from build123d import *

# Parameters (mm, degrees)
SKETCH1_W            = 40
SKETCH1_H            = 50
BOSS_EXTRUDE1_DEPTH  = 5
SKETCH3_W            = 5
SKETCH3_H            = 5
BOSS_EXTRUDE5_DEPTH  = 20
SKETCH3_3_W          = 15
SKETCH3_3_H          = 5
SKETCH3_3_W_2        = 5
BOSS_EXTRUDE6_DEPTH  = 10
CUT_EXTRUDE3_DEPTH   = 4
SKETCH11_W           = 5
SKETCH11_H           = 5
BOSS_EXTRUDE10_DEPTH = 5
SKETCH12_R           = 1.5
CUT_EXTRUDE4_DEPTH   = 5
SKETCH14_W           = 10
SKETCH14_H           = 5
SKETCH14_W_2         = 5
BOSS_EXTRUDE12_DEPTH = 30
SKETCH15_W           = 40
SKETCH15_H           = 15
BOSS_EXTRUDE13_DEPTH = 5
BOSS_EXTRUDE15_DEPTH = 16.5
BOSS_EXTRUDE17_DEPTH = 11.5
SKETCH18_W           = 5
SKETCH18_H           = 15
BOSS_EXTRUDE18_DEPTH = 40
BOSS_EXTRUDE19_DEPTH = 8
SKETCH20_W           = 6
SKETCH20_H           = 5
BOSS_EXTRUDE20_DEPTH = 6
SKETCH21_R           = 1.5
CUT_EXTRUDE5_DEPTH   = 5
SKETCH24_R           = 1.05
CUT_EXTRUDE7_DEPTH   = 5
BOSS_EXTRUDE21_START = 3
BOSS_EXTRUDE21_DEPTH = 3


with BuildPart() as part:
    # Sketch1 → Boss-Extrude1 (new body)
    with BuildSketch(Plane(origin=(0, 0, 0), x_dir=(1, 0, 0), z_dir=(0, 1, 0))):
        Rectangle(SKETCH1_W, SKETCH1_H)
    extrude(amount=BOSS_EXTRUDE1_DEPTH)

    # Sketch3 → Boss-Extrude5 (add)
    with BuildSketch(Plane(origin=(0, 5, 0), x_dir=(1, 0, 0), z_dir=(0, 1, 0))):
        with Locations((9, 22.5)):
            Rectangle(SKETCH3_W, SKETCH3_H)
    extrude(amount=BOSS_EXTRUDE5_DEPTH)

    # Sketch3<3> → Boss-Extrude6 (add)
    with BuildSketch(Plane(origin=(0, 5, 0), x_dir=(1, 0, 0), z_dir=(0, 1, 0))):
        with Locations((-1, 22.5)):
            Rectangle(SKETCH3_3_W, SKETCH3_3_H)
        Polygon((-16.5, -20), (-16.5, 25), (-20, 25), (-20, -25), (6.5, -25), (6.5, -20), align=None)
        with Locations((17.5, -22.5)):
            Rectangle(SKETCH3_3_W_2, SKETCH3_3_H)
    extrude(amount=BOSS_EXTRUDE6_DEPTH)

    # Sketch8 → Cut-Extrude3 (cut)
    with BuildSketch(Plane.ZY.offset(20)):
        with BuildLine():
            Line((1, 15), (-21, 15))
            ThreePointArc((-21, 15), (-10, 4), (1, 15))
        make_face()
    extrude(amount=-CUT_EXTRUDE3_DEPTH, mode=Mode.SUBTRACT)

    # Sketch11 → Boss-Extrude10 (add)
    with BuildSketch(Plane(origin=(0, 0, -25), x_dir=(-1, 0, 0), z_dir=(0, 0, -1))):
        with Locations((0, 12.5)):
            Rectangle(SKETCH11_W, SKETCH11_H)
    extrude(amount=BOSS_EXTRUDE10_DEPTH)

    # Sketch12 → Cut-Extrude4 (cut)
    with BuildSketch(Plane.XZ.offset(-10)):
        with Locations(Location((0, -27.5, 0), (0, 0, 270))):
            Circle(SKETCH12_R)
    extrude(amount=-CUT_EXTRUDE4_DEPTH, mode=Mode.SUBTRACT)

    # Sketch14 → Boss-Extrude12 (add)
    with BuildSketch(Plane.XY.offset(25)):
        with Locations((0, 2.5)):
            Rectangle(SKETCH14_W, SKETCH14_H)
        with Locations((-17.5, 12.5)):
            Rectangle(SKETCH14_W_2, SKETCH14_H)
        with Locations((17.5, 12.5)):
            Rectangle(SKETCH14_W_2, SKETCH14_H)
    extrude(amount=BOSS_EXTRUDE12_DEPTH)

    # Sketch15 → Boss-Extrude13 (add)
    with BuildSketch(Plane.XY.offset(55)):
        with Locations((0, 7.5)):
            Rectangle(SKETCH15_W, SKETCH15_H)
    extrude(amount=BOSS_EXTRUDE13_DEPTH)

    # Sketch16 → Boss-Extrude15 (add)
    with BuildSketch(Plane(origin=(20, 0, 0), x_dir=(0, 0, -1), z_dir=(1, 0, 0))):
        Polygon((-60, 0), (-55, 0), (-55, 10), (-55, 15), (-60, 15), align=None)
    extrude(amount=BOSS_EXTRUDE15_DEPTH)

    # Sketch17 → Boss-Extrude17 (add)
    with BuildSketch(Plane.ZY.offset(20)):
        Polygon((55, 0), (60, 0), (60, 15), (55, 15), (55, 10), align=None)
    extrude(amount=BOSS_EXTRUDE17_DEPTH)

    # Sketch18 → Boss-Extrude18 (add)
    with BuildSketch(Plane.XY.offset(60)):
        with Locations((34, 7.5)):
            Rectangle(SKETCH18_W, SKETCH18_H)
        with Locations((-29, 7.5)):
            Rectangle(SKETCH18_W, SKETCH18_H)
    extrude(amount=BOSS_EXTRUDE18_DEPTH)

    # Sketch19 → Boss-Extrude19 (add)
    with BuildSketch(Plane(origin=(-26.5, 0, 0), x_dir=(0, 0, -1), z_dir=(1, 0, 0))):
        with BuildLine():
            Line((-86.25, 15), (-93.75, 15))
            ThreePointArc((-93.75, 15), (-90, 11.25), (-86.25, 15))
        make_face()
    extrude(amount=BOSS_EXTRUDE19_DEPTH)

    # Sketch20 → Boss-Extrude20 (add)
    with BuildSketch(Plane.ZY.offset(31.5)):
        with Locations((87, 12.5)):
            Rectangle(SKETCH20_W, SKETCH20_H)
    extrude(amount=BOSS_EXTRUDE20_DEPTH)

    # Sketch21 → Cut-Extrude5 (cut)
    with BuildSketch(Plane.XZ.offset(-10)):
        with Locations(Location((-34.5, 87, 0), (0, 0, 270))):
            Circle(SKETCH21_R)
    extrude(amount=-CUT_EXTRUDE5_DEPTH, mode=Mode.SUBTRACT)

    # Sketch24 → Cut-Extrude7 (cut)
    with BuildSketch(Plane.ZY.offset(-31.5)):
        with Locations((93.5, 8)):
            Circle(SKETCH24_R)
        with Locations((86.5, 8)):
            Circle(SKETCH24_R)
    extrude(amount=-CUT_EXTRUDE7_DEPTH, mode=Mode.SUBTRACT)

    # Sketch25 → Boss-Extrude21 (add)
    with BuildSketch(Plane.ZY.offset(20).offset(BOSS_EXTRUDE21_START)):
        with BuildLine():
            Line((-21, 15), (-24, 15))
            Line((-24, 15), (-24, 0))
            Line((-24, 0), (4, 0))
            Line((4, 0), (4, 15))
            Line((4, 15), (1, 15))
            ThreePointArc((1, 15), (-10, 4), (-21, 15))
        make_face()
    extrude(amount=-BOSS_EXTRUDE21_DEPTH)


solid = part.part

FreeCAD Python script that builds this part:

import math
import FreeCAD as App
import Part
import Sketcher

V = App.Vector


def add_polygon(sketch, points):
    """Adds a closed chain of lines whose ends are joined by coincident constraints."""
    first, n = sketch.GeometryCount, len(points)
    for a, b in zip(points, points[1:] + points[:1]):
        sketch.addGeometry(Part.LineSegment(App.Vector(*a, 0), App.Vector(*b, 0)), False)
    for i in range(n):
        sketch.addConstraint(Sketcher.Constraint("Coincident", first + i, 2, first + (i + 1) % n, 1))

doc = App.newDocument("Part")
body = doc.addObject("PartDesign::Body", "Body")

sketch1 = doc.addObject("Sketcher::SketchObject", "Sketch")
body.addObject(sketch1)
sketch1.AttachmentSupport = (doc.XZ_Plane, [""])
sketch1.MapMode = "FlatFace"
add_polygon(sketch1, [(-20, -25), (-20, 25), (20, 25), (20, -25)])
sketch1.addConstraint(Sketcher.Constraint("Vertical", 0))
sketch1.addConstraint(Sketcher.Constraint("Horizontal", 1))
sketch1.addConstraint(Sketcher.Constraint("Vertical", 2))
sketch1.addConstraint(Sketcher.Constraint("Horizontal", 3))
sketch1.addConstraint(Sketcher.Constraint("Symmetric", 0, 2, 2, 2, -1, 1))
sketch1.addConstraint(Sketcher.Constraint("DistanceX", 1, 1, 1, 2, 40.0))
sketch1.addConstraint(Sketcher.Constraint("DistanceY", 0, 1, 0, 2, 50.0))
pad1 = doc.addObject("PartDesign::Pad", "Pad")
body.addObject(pad1)
pad1.Profile = sketch1
pad1.Length = 5
pad1.Reversed = True

sketch2 = doc.addObject("Sketcher::SketchObject", "Sketch001")
body.addObject(sketch2)
sketch2.AttachmentSupport = (doc.XZ_Plane, [""])
sketch2.MapMode = "FlatFace"
sketch2.AttachmentOffset = App.Placement(V(0, 0, -5), App.Rotation())
add_polygon(sketch2, [(6, -25), (6, -20), (12, -20), (12, -25)])
sketch2.addConstraint(Sketcher.Constraint("Vertical", 0))
sketch2.addConstraint(Sketcher.Constraint("Horizontal", 1))
sketch2.addConstraint(Sketcher.Constraint("Vertical", 2))
sketch2.addConstraint(Sketcher.Constraint("Horizontal", 3))
sketch2.addConstraint(Sketcher.Constraint("Equal", 3, 0))
sketch2.addConstraint(Sketcher.Constraint("DistanceX", 1, 1, 1, 2, 5.0))
sketch2.addConstraint(Sketcher.Constraint("DistanceY", 0, 2, -1, 1, 20.0))
sketch2.addConstraint(Sketcher.Constraint("DistanceX", -1, 1, 0, 2, 6.5))
pad2 = doc.addObject("PartDesign::Pad", "Pad001")
body.addObject(pad2)
pad2.Profile = sketch2
pad2.Length = 20
pad2.Reversed = True

sketch3 = doc.addObject("Sketcher::SketchObject", "Sketch002")
body.addObject(sketch3)
sketch3.AttachmentSupport = (doc.XZ_Plane, [""])
sketch3.MapMode = "FlatFace"
sketch3.AttachmentOffset = App.Placement(V(0, 0, -5), App.Rotation())
add_polygon(sketch3, [(-8.5, -25), (-8.5, -20), (6.5, -20), (6.5, -25)])
add_polygon(sketch3, [(-16.5, 20), (-16.5, -25), (-20, -25), (-20, 25), (6.5, 25), (6.5, 20)])
add_polygon(sketch3, [(15, 20), (15, 25), (20, 25), (20, 20)])
sketch3.addConstraint(Sketcher.Constraint("Vertical", 0))
sketch3.addConstraint(Sketcher.Constraint("Horizontal", 1))
sketch3.addConstraint(Sketcher.Constraint("Vertical", 2))
sketch3.addConstraint(Sketcher.Constraint("Horizontal", 3))
sketch3.addConstraint(Sketcher.Constraint("Vertical", 4))
sketch3.addConstraint(Sketcher.Constraint("Horizontal", 5))
sketch3.addConstraint(Sketcher.Constraint("Vertical", 6))
sketch3.addConstraint(Sketcher.Constraint("Horizontal", 7))
sketch3.addConstraint(Sketcher.Constraint("Vertical", 8))
sketch3.addConstraint(Sketcher.Constraint("Horizontal", 9))
sketch3.addConstraint(Sketcher.Constraint("Vertical", 10))
sketch3.addConstraint(Sketcher.Constraint("Horizontal", 11))
sketch3.addConstraint(Sketcher.Constraint("Vertical", 12))
sketch3.addConstraint(Sketcher.Constraint("Horizontal", 13))
sketch3.addConstraint(Sketcher.Constraint("Symmetric", 5, 2, 11, 2, -1, 1))
sketch3.addConstraint(Sketcher.Constraint("Symmetric", 2, 2, 7, 2, -1))
sketch3.addConstraint(Sketcher.Constraint("Horizontal", 3, 2, 4, 2))
sketch3.addConstraint(Sketcher.Constraint("Horizontal", 9, 2, 12, 2))
sketch3.addConstraint(Sketcher.Constraint("Equal", 13, 0))
sketch3.addConstraint(Sketcher.Constraint("Equal", 2, 8))
sketch3.addConstraint(Sketcher.Constraint("DistanceX", 1, 1, 1, 2, 15.0))
sketch3.addConstraint(Sketcher.Constraint("DistanceX", 9, 2, 9, 1, 23.0))
sketch3.addConstraint(Sketcher.Constraint("DistanceX", 11, 1, 11, 2, 5.0))
sketch3.addConstraint(Sketcher.Constraint("DistanceY", 4, 2, 4, 1, 45.0))
sketch3.addConstraint(Sketcher.Constraint("DistanceX", 5, 2, 5, 1, 3.5))
sketch3.addConstraint(Sketcher.Constraint("DistanceX", 5, 2, -1, 1, 20.0))
pad3 = doc.addObject("PartDesign::Pad", "Pad002")
body.addObject(pad3)
pad3.Profile = sketch3
pad3.Length = 10
pad3.Reversed = True

sketch4 = doc.addObject("Sketcher::SketchObject", "Sketch003")
body.addObject(sketch4)
sketch4.AttachmentSupport = (doc.YZ_Plane, [""])
sketch4.MapMode = "FlatFace"
sketch4.AttachmentOffset = App.Placement(V(0, 0, -20), App.Rotation())
sketch4.addGeometry(Part.LineSegment(V(15, 1, 0), V(15, -21, 0)), False)
sketch4.addGeometry(Part.ArcOfCircle(Part.Circle(V(15, -10, 0), V(0, 0, 1), 11), math.radians(90), math.radians(270)), False)
sketch4.addConstraint(Sketcher.Constraint("Coincident", 0, 1, 1, 1))
sketch4.addConstraint(Sketcher.Constraint("Coincident", 1, 2, 0, 2))
sketch4.addConstraint(Sketcher.Constraint("Vertical", 0))
sketch4.addConstraint(Sketcher.Constraint("Vertical", 1, 3, 0, 1))
sketch4.addConstraint(Sketcher.Constraint("Radius", 1, 11.0))
sketch4.addConstraint(Sketcher.Constraint("DistanceX", -1, 1, 1, 3, 15.0))
sketch4.addConstraint(Sketcher.Constraint("DistanceY", 1, 3, -1, 1, 10.0))
pocket1 = doc.addObject("PartDesign::Pocket", "Pocket")
body.addObject(pocket1)
pocket1.Profile = sketch4
pocket1.Length = 4
pocket1.Reversed = True

sketch5 = doc.addObject("Sketcher::SketchObject", "Sketch004")
body.addObject(sketch5)
sketch5.AttachmentSupport = (doc.XY_Plane, [""])
sketch5.MapMode = "FlatFace"
sketch5.AttachmentOffset = App.Placement(V(0, 0, -25), App.Rotation())
add_polygon(sketch5, [(2, 15), (2, 10), (-2, 10), (-2, 15)])
sketch5.addConstraint(Sketcher.Constraint("Vertical", 0))
sketch5.addConstraint(Sketcher.Constraint("Horizontal", 1))
sketch5.addConstraint(Sketcher.Constraint("Vertical", 2))
sketch5.addConstraint(Sketcher.Constraint("Horizontal", 3))
sketch5.addConstraint(Sketcher.Constraint("Equal", 3, 0))
sketch5.addConstraint(Sketcher.Constraint("DistanceX", 1, 2, 1, 1, 5.0))
sketch5.addConstraint(Sketcher.Constraint("DistanceY", -1, 1, 0, 2, 10.0))
sketch5.addConstraint(Sketcher.Constraint("DistanceX", -1, 1, 0, 2, 2.5))
pad4 = doc.addObject("PartDesign::Pad", "Pad003")
body.addObject(pad4)
pad4.Profile = sketch5
pad4.Length = 5
pad4.Reversed = True

sketch6 = doc.addObject("Sketcher::SketchObject", "Sketch005")
body.addObject(sketch6)
sketch6.AttachmentSupport = (doc.XZ_Plane, [""])
sketch6.MapMode = "FlatFace"
sketch6.AttachmentOffset = App.Placement(V(0, 0, -10), App.Rotation())
sketch6.addGeometry(Part.Circle(V(0, -27.5, 0), V(0, 0, 1), 1.5), False)
sketch6.addConstraint(Sketcher.Constraint("PointOnObject", 0, 3, -2))
sketch6.addConstraint(Sketcher.Constraint("Diameter", 0, 3.0))
sketch6.addConstraint(Sketcher.Constraint("DistanceY", 0, 3, -1, 1, 27.5))
pocket2 = doc.addObject("PartDesign::Pocket", "Pocket001")
body.addObject(pocket2)
pocket2.Profile = sketch6
pocket2.Length = 5

sketch7 = doc.addObject("Sketcher::SketchObject", "Sketch006")
body.addObject(sketch7)
sketch7.AttachmentSupport = (doc.XY_Plane, [""])
sketch7.MapMode = "FlatFace"
sketch7.AttachmentOffset = App.Placement(V(0, 0, 25), App.Rotation())
add_polygon(sketch7, [(-5, 5), (-5, 0), (5, 0), (5, 5)])
add_polygon(sketch7, [(-20, 15), (-20, 10), (-15, 10), (-15, 15)])
add_polygon(sketch7, [(15, 15), (15, 10), (20, 10), (20, 15)])
sketch7.addConstraint(Sketcher.Constraint("Vertical", 0))
sketch7.addConstraint(Sketcher.Constraint("Horizontal", 1))
sketch7.addConstraint(Sketcher.Constraint("Vertical", 2))
sketch7.addConstraint(Sketcher.Constraint("Horizontal", 3))
sketch7.addConstraint(Sketcher.Constraint("Vertical", 4))
sketch7.addConstraint(Sketcher.Constraint("Horizontal", 5))
sketch7.addConstraint(Sketcher.Constraint("Vertical", 6))
sketch7.addConstraint(Sketcher.Constraint("Horizontal", 7))
sketch7.addConstraint(Sketcher.Constraint("Vertical", 8))
sketch7.addConstraint(Sketcher.Constraint("Horizontal", 9))
sketch7.addConstraint(Sketcher.Constraint("Vertical", 10))
sketch7.addConstraint(Sketcher.Constraint("Horizontal", 11))
sketch7.addConstraint(Sketcher.Constraint("Symmetric", 0, 2, 1, 2, -1, 1))
sketch7.addConstraint(Sketcher.Constraint("Symmetric", 5, 2, 8, 2, -2))
sketch7.addConstraint(Sketcher.Constraint("Symmetric", 7, 2, 10, 2, -2))
sketch7.addConstraint(Sketcher.Constraint("Equal", 11, 0))
sketch7.addConstraint(Sketcher.Constraint("Equal", 2, 4))
sketch7.addConstraint(Sketcher.Constraint("DistanceX", 1, 1, 1, 2, 10.0))
sketch7.addConstraint(Sketcher.Constraint("DistanceX", 5, 1, 5, 2, 5.0))
sketch7.addConstraint(Sketcher.Constraint("DistanceX", 4, 2, -1, 1, 20.0))
sketch7.addConstraint(Sketcher.Constraint("DistanceY", -1, 1, 4, 2, 10.0))
pad5 = doc.addObject("PartDesign::Pad", "Pad004")
body.addObject(pad5)
pad5.Profile = sketch7
pad5.Length = 30

sketch8 = doc.addObject("Sketcher::SketchObject", "Sketch007")
body.addObject(sketch8)
sketch8.AttachmentSupport = (doc.XY_Plane, [""])
sketch8.MapMode = "FlatFace"
sketch8.AttachmentOffset = App.Placement(V(0, 0, 55), App.Rotation())
add_polygon(sketch8, [(-20, 15), (-20, 0), (20, 0), (20, 15)])
sketch8.addConstraint(Sketcher.Constraint("Vertical", 0))
sketch8.addConstraint(Sketcher.Constraint("Horizontal", 1))
sketch8.addConstraint(Sketcher.Constraint("Vertical", 2))
sketch8.addConstraint(Sketcher.Constraint("Horizontal", 3))
sketch8.addConstraint(Sketcher.Constraint("Symmetric", 0, 2, 1, 2, -1, 1))
sketch8.addConstraint(Sketcher.Constraint("DistanceX", 1, 1, 1, 2, 40.0))
sketch8.addConstraint(Sketcher.Constraint("DistanceY", 0, 2, 0, 1, 15.0))
pad6 = doc.addObject("PartDesign::Pad", "Pad005")
body.addObject(pad6)
pad6.Profile = sketch8
pad6.Length = 5

sketch9 = doc.addObject("Sketcher::SketchObject", "Sketch008")
body.addObject(sketch9)
sketch9.AttachmentSupport = (doc.YZ_Plane, [""])
sketch9.MapMode = "FlatFace"
sketch9.AttachmentOffset = App.Placement(V(0, 0, 20), App.Rotation())
add_polygon(sketch9, [(0, 60), (0, 55), (15, 55), (15, 60)])
sketch9.addConstraint(Sketcher.Constraint("Vertical", 0))
sketch9.addConstraint(Sketcher.Constraint("Horizontal", 1))
sketch9.addConstraint(Sketcher.Constraint("Vertical", 2))
sketch9.addConstraint(Sketcher.Constraint("Horizontal", 3))
sketch9.addConstraint(Sketcher.Constraint("PointOnObject", 0, 2, -2))
sketch9.addConstraint(Sketcher.Constraint("DistanceX", 1, 1, 1, 2, 15.0))
sketch9.addConstraint(Sketcher.Constraint("DistanceY", 0, 2, 0, 1, 5.0))
sketch9.addConstraint(Sketcher.Constraint("DistanceY", -1, 1, 0, 2, 55.0))
pad7 = doc.addObject("PartDesign::Pad", "Pad006")
body.addObject(pad7)
pad7.Profile = sketch9
pad7.Length = 16.5

sketch10 = doc.addObject("Sketcher::SketchObject", "Sketch009")
body.addObject(sketch10)
sketch10.AttachmentSupport = (doc.YZ_Plane, [""])
sketch10.MapMode = "FlatFace"
sketch10.AttachmentOffset = App.Placement(V(0, 0, -20), App.Rotation())
add_polygon(sketch10, [(0, 55), (0, 60), (15, 60), (15, 55)])
sketch10.addConstraint(Sketcher.Constraint("Vertical", 0))
sketch10.addConstraint(Sketcher.Constraint("Horizontal", 1))
sketch10.addConstraint(Sketcher.Constraint("Vertical", 2))
sketch10.addConstraint(Sketcher.Constraint("Horizontal", 3))
sketch10.addConstraint(Sketcher.Constraint("PointOnObject", 0, 2, -2))
sketch10.addConstraint(Sketcher.Constraint("DistanceX", 1, 1, 1, 2, 15.0))
sketch10.addConstraint(Sketcher.Constraint("DistanceY", 0, 1, 0, 2, 5.0))
sketch10.addConstraint(Sketcher.Constraint("DistanceY", -1, 1, 0, 2, 60.0))
pad8 = doc.addObject("PartDesign::Pad", "Pad007")
body.addObject(pad8)
pad8.Profile = sketch10
pad8.Length = 11.5
pad8.Reversed = True

sketch11 = doc.addObject("Sketcher::SketchObject", "Sketch010")
body.addObject(sketch11)
sketch11.AttachmentSupport = (doc.XY_Plane, [""])
sketch11.MapMode = "FlatFace"
sketch11.AttachmentOffset = App.Placement(V(0, 0, 60), App.Rotation())
add_polygon(sketch11, [(32, 15), (32, 0), (36, 0), (36, 15)])
add_polygon(sketch11, [(-32, 15), (-32, 0), (-26, 0), (-26, 15)])
sketch11.addConstraint(Sketcher.Constraint("Vertical", 0))
sketch11.addConstraint(Sketcher.Constraint("Horizontal", 1))
sketch11.addConstraint(Sketcher.Constraint("Vertical", 2))
sketch11.addConstraint(Sketcher.Constraint("Horizontal", 3))
sketch11.addConstraint(Sketcher.Constraint("Vertical", 4))
sketch11.addConstraint(Sketcher.Constraint("Horizontal", 5))
sketch11.addConstraint(Sketcher.Constraint("Vertical", 6))
sketch11.addConstraint(Sketcher.Constraint("Horizontal", 7))
sketch11.addConstraint(Sketcher.Constraint("Symmetric", 0, 2, 4, 2, -1, 1))
sketch11.addConstraint(Sketcher.Constraint("PointOnObject", 0, 2, -1))
sketch11.addConstraint(Sketcher.Constraint("Horizontal", 3, 2, 6, 2))
sketch11.addConstraint(Sketcher.Constraint("Equal", 3, 5))
sketch11.addConstraint(Sketcher.Constraint("DistanceX", 1, 1, 1, 2, 5.0))
sketch11.addConstraint(Sketcher.Constraint("DistanceY", 0, 2, 0, 1, 15.0))
sketch11.addConstraint(Sketcher.Constraint("DistanceX", 4, 2, 0, 2, 63.0))
pad9 = doc.addObject("PartDesign::Pad", "Pad008")
body.addObject(pad9)
pad9.Profile = sketch11
pad9.Length = 40

sketch12 = doc.addObject("Sketcher::SketchObject", "Sketch011")
body.addObject(sketch12)
sketch12.AttachmentSupport = (doc.YZ_Plane, [""])
sketch12.MapMode = "FlatFace"
sketch12.AttachmentOffset = App.Placement(V(0, 0, -26.5), App.Rotation())
sketch12.addGeometry(Part.LineSegment(V(15, 86.2, 0), V(15, 93.8, 0)), False)
sketch12.addGeometry(Part.ArcOfCircle(Part.Circle(V(15, 90, 0), V(0, 0, 1), 3.8), math.radians(90), math.radians(270)), False)
sketch12.addConstraint(Sketcher.Constraint("Coincident", 0, 1, 1, 2))
sketch12.addConstraint(Sketcher.Constraint("Coincident", 1, 1, 0, 2))
sketch12.addConstraint(Sketcher.Constraint("Vertical", 0))
sketch12.addConstraint(Sketcher.Constraint("Vertical", 1, 3, 0, 1))
sketch12.addConstraint(Sketcher.Constraint("Radius", 1, 3.75))
sketch12.addConstraint(Sketcher.Constraint("DistanceX", -1, 1, 1, 3, 15.0))
sketch12.addConstraint(Sketcher.Constraint("DistanceY", -1, 1, 1, 3, 90.0))
pad10 = doc.addObject("PartDesign::Pad", "Pad009")
body.addObject(pad10)
pad10.Profile = sketch12
pad10.Length = 8

sketch13 = doc.addObject("Sketcher::SketchObject", "Sketch012")
body.addObject(sketch13)
sketch13.AttachmentSupport = (doc.YZ_Plane, [""])
sketch13.MapMode = "FlatFace"
sketch13.AttachmentOffset = App.Placement(V(0, 0, -31.5), App.Rotation())
add_polygon(sketch13, [(15, 84), (10, 84), (10, 90), (15, 90)])
sketch13.addConstraint(Sketcher.Constraint("Horizontal", 0))
sketch13.addConstraint(Sketcher.Constraint("Vertical", 1))
sketch13.addConstraint(Sketcher.Constraint("Horizontal", 2))
sketch13.addConstraint(Sketcher.Constraint("Vertical", 3))
sketch13.addConstraint(Sketcher.Constraint("DistanceX", 0, 2, 0, 1, 5.0))
sketch13.addConstraint(Sketcher.Constraint("DistanceY", 1, 1, 1, 2, 6.0))
sketch13.addConstraint(Sketcher.Constraint("DistanceX", -1, 1, 0, 2, 10.0))
sketch13.addConstraint(Sketcher.Constraint("DistanceY", -1, 1, 0, 2, 84.0))
pad11 = doc.addObject("PartDesign::Pad", "Pad010")
body.addObject(pad11)
pad11.Profile = sketch13
pad11.Length = 6
pad11.Reversed = True

sketch14 = doc.addObject("Sketcher::SketchObject", "Sketch013")
body.addObject(sketch14)
sketch14.AttachmentSupport = (doc.XZ_Plane, [""])
sketch14.MapMode = "FlatFace"
sketch14.AttachmentOffset = App.Placement(V(0, 0, -10), App.Rotation())
sketch14.addGeometry(Part.Circle(V(-34.5, 87, 0), V(0, 0, 1), 1.5), False)
sketch14.addConstraint(Sketcher.Constraint("Diameter", 0, 3.0))
sketch14.addConstraint(Sketcher.Constraint("DistanceY", -1, 1, 0, 3, 87.0))
sketch14.addConstraint(Sketcher.Constraint("DistanceX", 0, 3, -1, 1, 34.5))
pocket3 = doc.addObject("PartDesign::Pocket", "Pocket002")
body.addObject(pocket3)
pocket3.Profile = sketch14
pocket3.Length = 5

sketch15 = doc.addObject("Sketcher::SketchObject", "Sketch014")
body.addObject(sketch15)
sketch15.AttachmentSupport = (doc.YZ_Plane, [""])
sketch15.MapMode = "FlatFace"
sketch15.AttachmentOffset = App.Placement(V(0, 0, 31.5), App.Rotation())
sketch15.addGeometry(Part.Circle(V(8, 93.5, 0), V(0, 0, 1), 1.1), False)
sketch15.addGeometry(Part.Circle(V(8, 86.5, 0), V(0, 0, 1), 1.1), False)
sketch15.addConstraint(Sketcher.Constraint("Equal", 0, 1))
sketch15.addConstraint(Sketcher.Constraint("Vertical", 0, 3, 1, 3))
sketch15.addConstraint(Sketcher.Constraint("Diameter", 0, 2.1))
sketch15.addConstraint(Sketcher.Constraint("DistanceX", -1, 1, 0, 3, 8.0))
sketch15.addConstraint(Sketcher.Constraint("DistanceY", 1, 3, 0, 3, 7.0))
sketch15.addConstraint(Sketcher.Constraint("DistanceY", -1, 1, 0, 3, 93.5))
pocket4 = doc.addObject("PartDesign::Pocket", "Pocket003")
body.addObject(pocket4)
pocket4.Profile = sketch15
pocket4.Length = 5
pocket4.Reversed = True

sketch16 = doc.addObject("Sketcher::SketchObject", "Sketch015")
body.addObject(sketch16)
sketch16.AttachmentSupport = (doc.YZ_Plane, [""])
sketch16.MapMode = "FlatFace"
sketch16.AttachmentOffset = App.Placement(V(0, 0, -23), App.Rotation())
sketch16.addGeometry(Part.LineSegment(V(15, -21, 0), V(15, -24, 0)), False)
sketch16.addGeometry(Part.LineSegment(V(15, -24, 0), V(0, -24, 0)), False)
sketch16.addGeometry(Part.LineSegment(V(0, -24, 0), V(0, 4, 0)), False)
sketch16.addGeometry(Part.LineSegment(V(0, 4, 0), V(15, 4, 0)), False)
sketch16.addGeometry(Part.LineSegment(V(15, 4, 0), V(15, 1, 0)), False)
sketch16.addGeometry(Part.ArcOfCircle(Part.Circle(V(15, -10, 0), V(0, 0, 1), 11), math.radians(90), math.radians(270)), False)
sketch16.addConstraint(Sketcher.Constraint("Coincident", 0, 2, 1, 1))
sketch16.addConstraint(Sketcher.Constraint("Coincident", 1, 2, 2, 1))
sketch16.addConstraint(Sketcher.Constraint("Coincident", 2, 2, 3, 1))
sketch16.addConstraint(Sketcher.Constraint("Coincident", 3, 2, 4, 1))
sketch16.addConstraint(Sketcher.Constraint("Coincident", 4, 2, 5, 1))
sketch16.addConstraint(Sketcher.Constraint("Coincident", 5, 2, 0, 1))
sketch16.addConstraint(Sketcher.Constraint("Vertical", 0))
sketch16.addConstraint(Sketcher.Constraint("Horizontal", 1))
sketch16.addConstraint(Sketcher.Constraint("Vertical", 2))
sketch16.addConstraint(Sketcher.Constraint("Horizontal", 3))
sketch16.addConstraint(Sketcher.Constraint("Vertical", 4))
sketch16.addConstraint(Sketcher.Constraint("PointOnObject", 1, 2, -2))
sketch16.addConstraint(Sketcher.Constraint("Vertical", 5, 3, 0, 2))
sketch16.addConstraint(Sketcher.Constraint("Vertical", 0, 2, 3, 2))
sketch16.addConstraint(Sketcher.Constraint("Equal", 0, 4))
sketch16.addConstraint(Sketcher.Constraint("Radius", 5, 11.0))
sketch16.addConstraint(Sketcher.Constraint("DistanceX", 1, 2, 1, 1, 15.0))
sketch16.addConstraint(Sketcher.Constraint("DistanceY", 0, 2, 0, 1, 3.0))
sketch16.addConstraint(Sketcher.Constraint("DistanceY", 5, 3, -1, 1, 10.0))
pad12 = doc.addObject("PartDesign::Pad", "Pad011")
body.addObject(pad12)
pad12.Profile = sketch16
pad12.Length = 3

doc.recompute()
